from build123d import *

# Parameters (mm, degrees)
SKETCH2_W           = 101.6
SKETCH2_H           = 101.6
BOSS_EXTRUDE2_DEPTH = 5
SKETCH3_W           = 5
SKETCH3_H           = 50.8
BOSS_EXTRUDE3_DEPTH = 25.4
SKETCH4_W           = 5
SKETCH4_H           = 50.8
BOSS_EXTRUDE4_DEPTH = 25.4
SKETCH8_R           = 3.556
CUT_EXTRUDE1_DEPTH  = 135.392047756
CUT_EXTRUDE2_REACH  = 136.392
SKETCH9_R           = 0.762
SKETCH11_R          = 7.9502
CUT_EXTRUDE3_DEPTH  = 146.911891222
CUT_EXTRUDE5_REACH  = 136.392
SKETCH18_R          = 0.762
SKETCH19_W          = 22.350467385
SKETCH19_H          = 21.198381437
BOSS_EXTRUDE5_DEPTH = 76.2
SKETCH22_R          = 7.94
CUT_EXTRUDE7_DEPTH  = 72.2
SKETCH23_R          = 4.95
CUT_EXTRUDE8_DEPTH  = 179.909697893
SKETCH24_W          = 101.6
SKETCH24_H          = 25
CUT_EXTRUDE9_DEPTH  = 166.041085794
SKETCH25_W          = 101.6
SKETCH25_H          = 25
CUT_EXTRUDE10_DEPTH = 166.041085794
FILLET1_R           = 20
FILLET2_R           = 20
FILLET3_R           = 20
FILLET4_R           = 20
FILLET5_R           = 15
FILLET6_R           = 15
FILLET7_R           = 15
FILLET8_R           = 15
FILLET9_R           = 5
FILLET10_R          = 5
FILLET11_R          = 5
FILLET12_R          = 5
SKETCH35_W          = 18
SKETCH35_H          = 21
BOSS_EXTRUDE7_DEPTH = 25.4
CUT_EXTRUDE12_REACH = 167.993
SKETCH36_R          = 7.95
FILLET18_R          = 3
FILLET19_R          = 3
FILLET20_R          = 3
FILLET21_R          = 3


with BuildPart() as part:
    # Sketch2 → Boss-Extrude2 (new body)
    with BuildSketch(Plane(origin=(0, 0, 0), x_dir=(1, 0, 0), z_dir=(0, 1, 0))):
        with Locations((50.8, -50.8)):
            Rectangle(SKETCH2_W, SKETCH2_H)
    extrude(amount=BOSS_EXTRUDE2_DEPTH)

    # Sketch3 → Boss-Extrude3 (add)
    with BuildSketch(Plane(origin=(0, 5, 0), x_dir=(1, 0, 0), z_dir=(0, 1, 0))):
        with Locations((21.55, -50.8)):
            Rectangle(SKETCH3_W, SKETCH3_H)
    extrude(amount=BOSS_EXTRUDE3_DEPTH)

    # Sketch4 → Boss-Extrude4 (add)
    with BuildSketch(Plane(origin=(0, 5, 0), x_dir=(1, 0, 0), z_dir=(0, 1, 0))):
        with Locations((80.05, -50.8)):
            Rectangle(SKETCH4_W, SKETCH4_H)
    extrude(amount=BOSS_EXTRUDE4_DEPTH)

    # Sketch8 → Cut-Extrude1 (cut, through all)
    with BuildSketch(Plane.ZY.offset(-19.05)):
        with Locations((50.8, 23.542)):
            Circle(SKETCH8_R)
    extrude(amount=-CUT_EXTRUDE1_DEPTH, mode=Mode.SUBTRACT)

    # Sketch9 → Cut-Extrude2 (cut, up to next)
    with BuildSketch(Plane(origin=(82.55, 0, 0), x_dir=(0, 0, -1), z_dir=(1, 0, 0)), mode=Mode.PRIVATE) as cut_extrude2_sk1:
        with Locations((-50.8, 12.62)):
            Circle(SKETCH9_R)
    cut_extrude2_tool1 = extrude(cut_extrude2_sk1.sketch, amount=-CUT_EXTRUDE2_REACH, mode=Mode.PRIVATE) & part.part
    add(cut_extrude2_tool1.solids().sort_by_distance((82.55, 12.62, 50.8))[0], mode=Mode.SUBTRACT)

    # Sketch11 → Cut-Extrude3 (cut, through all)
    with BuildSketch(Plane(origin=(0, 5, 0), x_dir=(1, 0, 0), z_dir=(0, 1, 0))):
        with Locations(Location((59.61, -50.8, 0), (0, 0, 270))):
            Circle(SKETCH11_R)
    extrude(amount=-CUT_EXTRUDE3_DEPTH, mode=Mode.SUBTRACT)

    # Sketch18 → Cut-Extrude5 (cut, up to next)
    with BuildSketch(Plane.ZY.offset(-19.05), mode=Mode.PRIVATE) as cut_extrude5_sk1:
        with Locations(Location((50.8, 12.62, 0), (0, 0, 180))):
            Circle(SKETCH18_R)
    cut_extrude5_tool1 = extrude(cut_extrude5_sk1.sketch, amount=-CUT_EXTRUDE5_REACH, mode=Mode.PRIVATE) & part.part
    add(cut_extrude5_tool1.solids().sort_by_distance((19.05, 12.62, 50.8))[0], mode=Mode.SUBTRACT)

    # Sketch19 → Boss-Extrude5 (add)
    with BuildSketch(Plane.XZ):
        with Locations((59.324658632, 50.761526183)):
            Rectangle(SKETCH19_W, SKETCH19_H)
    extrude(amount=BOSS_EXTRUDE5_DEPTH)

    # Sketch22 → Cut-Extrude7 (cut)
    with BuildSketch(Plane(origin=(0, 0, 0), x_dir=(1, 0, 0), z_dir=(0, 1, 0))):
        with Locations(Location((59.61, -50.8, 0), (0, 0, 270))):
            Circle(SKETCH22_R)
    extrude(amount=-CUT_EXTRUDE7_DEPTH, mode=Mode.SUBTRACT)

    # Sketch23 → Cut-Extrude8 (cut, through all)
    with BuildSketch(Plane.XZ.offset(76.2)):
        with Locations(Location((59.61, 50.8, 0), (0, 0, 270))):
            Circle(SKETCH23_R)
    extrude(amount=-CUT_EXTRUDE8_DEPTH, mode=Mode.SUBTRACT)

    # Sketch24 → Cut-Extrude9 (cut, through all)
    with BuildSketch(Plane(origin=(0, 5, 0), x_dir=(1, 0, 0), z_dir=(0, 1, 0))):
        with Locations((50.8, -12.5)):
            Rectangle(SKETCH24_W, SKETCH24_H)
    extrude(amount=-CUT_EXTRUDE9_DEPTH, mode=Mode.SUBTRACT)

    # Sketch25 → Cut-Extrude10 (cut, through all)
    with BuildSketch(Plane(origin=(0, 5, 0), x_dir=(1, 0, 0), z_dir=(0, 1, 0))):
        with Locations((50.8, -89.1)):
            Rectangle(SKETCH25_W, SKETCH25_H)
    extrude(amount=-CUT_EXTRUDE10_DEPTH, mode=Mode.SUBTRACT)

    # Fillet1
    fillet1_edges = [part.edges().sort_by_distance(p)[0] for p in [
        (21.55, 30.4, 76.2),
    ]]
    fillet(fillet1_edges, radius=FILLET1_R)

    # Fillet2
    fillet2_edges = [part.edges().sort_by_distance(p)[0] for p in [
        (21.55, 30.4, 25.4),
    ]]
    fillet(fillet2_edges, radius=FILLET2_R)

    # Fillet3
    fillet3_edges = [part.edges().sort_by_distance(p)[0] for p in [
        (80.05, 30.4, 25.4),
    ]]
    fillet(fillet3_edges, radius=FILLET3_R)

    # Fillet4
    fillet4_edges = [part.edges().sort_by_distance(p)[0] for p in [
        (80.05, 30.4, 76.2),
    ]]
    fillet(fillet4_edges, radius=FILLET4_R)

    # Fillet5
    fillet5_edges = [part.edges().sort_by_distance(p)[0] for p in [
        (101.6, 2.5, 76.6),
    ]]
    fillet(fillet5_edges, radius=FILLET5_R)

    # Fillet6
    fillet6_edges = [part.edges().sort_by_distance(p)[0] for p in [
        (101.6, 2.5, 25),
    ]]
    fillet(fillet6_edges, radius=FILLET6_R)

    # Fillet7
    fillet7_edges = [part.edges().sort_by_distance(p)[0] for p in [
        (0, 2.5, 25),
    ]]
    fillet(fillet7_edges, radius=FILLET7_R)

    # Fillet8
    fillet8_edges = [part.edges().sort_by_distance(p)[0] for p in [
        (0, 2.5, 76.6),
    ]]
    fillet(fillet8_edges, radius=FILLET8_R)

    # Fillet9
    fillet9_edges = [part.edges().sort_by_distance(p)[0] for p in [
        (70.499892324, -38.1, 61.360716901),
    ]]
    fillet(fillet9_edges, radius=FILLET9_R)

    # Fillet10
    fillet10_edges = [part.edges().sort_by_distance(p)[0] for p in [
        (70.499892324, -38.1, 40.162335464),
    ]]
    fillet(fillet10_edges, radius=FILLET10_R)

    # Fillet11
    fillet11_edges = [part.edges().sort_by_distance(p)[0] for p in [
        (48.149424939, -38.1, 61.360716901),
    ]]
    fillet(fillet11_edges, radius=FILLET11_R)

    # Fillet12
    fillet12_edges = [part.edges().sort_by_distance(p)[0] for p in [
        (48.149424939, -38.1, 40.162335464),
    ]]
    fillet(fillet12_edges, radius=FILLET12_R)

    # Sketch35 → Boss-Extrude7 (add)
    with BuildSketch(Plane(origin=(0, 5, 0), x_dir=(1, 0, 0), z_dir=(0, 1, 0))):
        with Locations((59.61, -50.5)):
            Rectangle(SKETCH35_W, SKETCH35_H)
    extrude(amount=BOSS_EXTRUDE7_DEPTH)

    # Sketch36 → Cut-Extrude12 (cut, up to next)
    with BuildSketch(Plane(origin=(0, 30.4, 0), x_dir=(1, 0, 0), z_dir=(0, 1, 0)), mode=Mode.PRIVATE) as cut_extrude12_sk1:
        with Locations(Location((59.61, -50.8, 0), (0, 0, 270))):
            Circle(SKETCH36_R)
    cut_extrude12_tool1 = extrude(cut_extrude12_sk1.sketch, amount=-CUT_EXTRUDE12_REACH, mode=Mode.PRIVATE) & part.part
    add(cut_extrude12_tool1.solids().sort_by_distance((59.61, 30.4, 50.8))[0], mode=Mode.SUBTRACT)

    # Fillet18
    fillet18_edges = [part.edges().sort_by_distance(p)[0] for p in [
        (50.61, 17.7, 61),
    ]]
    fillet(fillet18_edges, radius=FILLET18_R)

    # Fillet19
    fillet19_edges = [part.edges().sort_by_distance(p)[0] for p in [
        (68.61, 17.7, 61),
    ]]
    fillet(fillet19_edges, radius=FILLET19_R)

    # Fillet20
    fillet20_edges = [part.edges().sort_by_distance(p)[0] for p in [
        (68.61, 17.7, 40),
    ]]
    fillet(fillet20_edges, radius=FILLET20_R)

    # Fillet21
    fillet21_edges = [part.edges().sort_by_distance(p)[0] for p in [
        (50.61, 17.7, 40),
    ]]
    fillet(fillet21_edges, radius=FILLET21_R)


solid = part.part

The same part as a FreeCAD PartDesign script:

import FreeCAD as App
import Part
import Sketcher
from FreeCAD import Vector
Q = App.Units.Quantity


def edges_at(feature, points):
    """Names of the edges that pass closest to the given points."""
    edges = feature.Shape.Edges
    near = lambda p: min(range(len(edges)), key=lambda i: edges[i].distToShape(Part.Vertex(*p))[0])
    return sorted({f"Edge{near(p) + 1}" for p in points})


def add_polygon(sketch, points):
    """Adds a closed chain of lines whose ends are joined by coincident constraints."""
    first, n = sketch.GeometryCount, len(points)
    for a, b in zip(points, points[1:] + points[:1]):
        sketch.addGeometry(Part.LineSegment(App.Vector(*a, 0), App.Vector(*b, 0)), False)
    for i in range(n):
        sketch.addConstraint(Sketcher.Constraint("Coincident", first + i, 2, first + (i + 1) % n, 1))

doc = App.newDocument("Part")
body = doc.addObject("PartDesign::Body", "Body")

sketch1 = doc.addObject("Sketcher::SketchObject", "Sketch")
body.addObject(sketch1)
sketch1.AttachmentSupport = (doc.XZ_Plane, [""])
sketch1.MapMode = "FlatFace"
add_polygon(sketch1, [(0, 0), (0, 102), (102, 102), (102, 0)])
sketch1.addConstraint(Sketcher.Constraint("Vertical", 0))
sketch1.addConstraint(Sketcher.Constraint("Horizontal", 1))
sketch1.addConstraint(Sketcher.Constraint("Vertical", 2))
sketch1.addConstraint(Sketcher.Constraint("Horizontal", 3))
sketch1.addConstraint(Sketcher.Constraint("Coincident", 3, 2, -1, 1))
sketch1.addConstraint(Sketcher.Constraint("Equal", 3, 0))
sketch1.addConstraint(Sketcher.Constraint("DistanceX", 1, 1, 1, 2, Q("101.6 mm")))
pad1 = doc.addObject("PartDesign::Pad", "Pad")
body.addObject(pad1)
pad1.Profile = sketch1
pad1.Length = 5
pad1.Reversed = True

sketch2 = doc.addObject("Sketcher::SketchObject", "Sketch001")
body.addObject(sketch2)
sketch2.AttachmentSupport = (doc.XZ_Plane, [""])
sketch2.MapMode = "FlatFace"
sketch2.AttachmentOffset = App.Placement(Vector(0, 0, -5), App.Rotation())
add_polygon(sketch2, [(19, 25), (19, 76), (24, 76), (24, 25)])
sketch2.addConstraint(Sketcher.Constraint("Vertical", 0))
sketch2.addConstraint(Sketcher.Constraint("Horizontal", 1))
sketch2.addConstraint(Sketcher.Constraint("Vertical", 2))
sketch2.addConstraint(Sketcher.Constraint("Horizontal", 3))
sketch2.addConstraint(Sketcher.Constraint("DistanceX", 1, 1, 1, 2, Q("5 mm")))
sketch2.addConstraint(Sketcher.Constraint("DistanceY", 0, 1, 0, 2, Q("50.8 mm")))
sketch2.addConstraint(Sketcher.Constraint("DistanceY", -1, 1, 0, 2, Q("76.2 mm")))
sketch2.addConstraint(Sketcher.Constraint("DistanceX", -1, 1, 0, 2, Q("19.05 mm")))
pad2 = doc.addObject("PartDesign::Pad", "Pad001")
body.addObject(pad2)
pad2.Profile = sketch2
pad2.Length = 25.4
pad2.Reversed = True

sketch3 = doc.addObject("Sketcher::SketchObject", "Sketch002")
body.addObject(sketch3)
sketch3.AttachmentSupport = (doc.XZ_Plane, [""])
sketch3.MapMode = "FlatFace"
sketch3.AttachmentOffset = App.Placement(Vector(0, 0, -5), App.Rotation())
add_polygon(sketch3, [(78, 25), (78, 76), (83, 76), (83, 25)])
sketch3.addConstraint(Sketcher.Constraint("Vertical", 0))
sketch3.addConstraint(Sketcher.Constraint("Horizontal", 1))
sketch3.addConstraint(Sketcher.Constraint("Vertical", 2))
sketch3.addConstraint(Sketcher.Constraint("Horizontal", 3))
sketch3.addConstraint(Sketcher.Constraint("DistanceX", 1, 1, 1, 2, Q("5 mm")))
sketch3.addConstraint(Sketcher.Constraint("DistanceY", 0, 1, 0, 2, Q("50.8 mm")))
sketch3.addConstraint(Sketcher.Constraint("DistanceY", -1, 1, 0, 2, Q("76.2 mm")))
sketch3.addConstraint(Sketcher.Constraint("DistanceX", -1, 1, 0, 2, Q("77.55 mm")))
pad3 = doc.addObject("PartDesign::Pad", "Pad002")
body.addObject(pad3)
pad3.Profile = sketch3
pad3.Length = 25.4
pad3.Reversed = True

sketch4 = doc.addObject("Sketcher::SketchObject", "Sketch003")
body.addObject(sketch4)
sketch4.AttachmentSupport = (doc.YZ_Plane, [""])
sketch4.MapMode = "FlatFace"
sketch4.AttachmentOffset = App.Placement(Vector(0, 0, 19.05), App.Rotation())
sketch4.addGeometry(Part.Circle(Vector(23.5, 50.8, 0), Vector(0, 0, 1), 3.6), False)
sketch4.addConstraint(Sketcher.Constraint("Diameter", 0, Q("7.112 mm")))
sketch4.addConstraint(Sketcher.Constraint("DistanceY", -1, 1, 0, 3, Q("50.8 mm")))
sketch4.addConstraint(Sketcher.Constraint("DistanceX", -1, 1, 0, 3, Q("23.542 mm")))
pocket1 = doc.addObject("PartDesign::Pocket", "Pocket")
body.addObject(pocket1)
pocket1.Profile = sketch4
pocket1.Type = "ThroughAll"
pocket1.Reversed = True

sketch5 = doc.addObject("Sketcher::SketchObject", "Sketch004")
body.addObject(sketch5)
sketch5.AttachmentSupport = (doc.YZ_Plane, [""])
sketch5.MapMode = "FlatFace"
sketch5.AttachmentOffset = App.Placement(Vector(0, 0, 82.55), App.Rotation())
sketch5.addGeometry(Part.Circle(Vector(12.6, 50.8, 0), Vector(0, 0, 1), 0.8), False)
sketch5.addConstraint(Sketcher.Constraint("Diameter", 0, Q("1.524 mm")))
sketch5.addConstraint(Sketcher.Constraint("DistanceY", -1, 1, 0, 3, Q("50.8 mm")))
sketch5.addConstraint(Sketcher.Constraint("DistanceX", -1, 1, 0, 3, Q("12.62 mm")))
pocket2 = doc.addObject("PartDesign::Pocket", "Pocket001")
body.addObject(pocket2)
pocket2.Profile = sketch5
pocket2.Type = "UpToFirst"

sketch6 = doc.addObject("Sketcher::SketchObject", "Sketch005")
body.addObject(sketch6)
sketch6.AttachmentSupport = (doc.XZ_Plane, [""])
sketch6.MapMode = "FlatFace"
sketch6.AttachmentOffset = App.Placement(Vector(0, 0, -5), App.Rotation())
sketch6.addGeometry(Part.Circle(Vector(60, 51, 0), Vector(0, 0, 1), 8), False)
sketch6.addConstraint(Sketcher.Constraint("Diameter", 0, Q("15.9004 mm")))
sketch6.addConstraint(Sketcher.Constraint("DistanceY", -1, 1, 0, 3, Q("50.8 mm")))
sketch6.addConstraint(Sketcher.Constraint("DistanceX", -1, 1, 0, 3, Q("59.61 mm")))
pocket3 = doc.addObject("PartDesign::Pocket", "Pocket002")
body.addObject(pocket3)
pocket3.Profile = sketch6
pocket3.Type = "ThroughAll"
pocket3.Reversed = True

sketch7 = doc.addObject("Sketcher::SketchObject", "Sketch006")
body.addObject(sketch7)
sketch7.AttachmentSupport = (doc.YZ_Plane, [""])
sketch7.MapMode = "FlatFace"
sketch7.AttachmentOffset = App.Placement(Vector(0, 0, 19.05), App.Rotation())
sketch7.addGeometry(Part.Circle(Vector(12.6, 50.8, 0), Vector(0, 0, 1), 0.8), False)
sketch7.addConstraint(Sketcher.Constraint("Diameter", 0, Q("1.524 mm")))
sketch7.addConstraint(Sketcher.Constraint("DistanceY", -1, 1, 0, 3, Q("50.8 mm")))
sketch7.addConstraint(Sketcher.Constraint("DistanceX", -1, 1, 0, 3, Q("12.62 mm")))
pocket4 = doc.addObject("PartDesign::Pocket", "Pocket003")
body.addObject(pocket4)
pocket4.Profile = sketch7
pocket4.Type = "UpToFirst"
pocket4.Reversed = True

sketch8 = doc.addObject("Sketcher::SketchObject", "Sketch007")
body.addObject(sketch8)
sketch8.AttachmentSupport = (doc.XZ_Plane, [""])
sketch8.MapMode = "FlatFace"
add_polygon(sketch8, [(48, 61), (48, 40), (70, 40), (70, 61)])
sketch8.addConstraint(Sketcher.Constraint("Vertical", 0))
sketch8.addConstraint(Sketcher.Constraint("Horizontal", 1))
sketch8.addConstraint(Sketcher.Constraint("Vertical", 2))
sketch8.addConstraint(Sketcher.Constraint("Horizontal", 3))
sketch8.addConstraint(Sketcher.Constraint("DistanceY", 0, 2, 0, 1, Q("21.198381 mm")))
sketch8.addConstraint(Sketcher.Constraint("DistanceX", 1, 1, 1, 2, Q("22.350467 mm")))
sketch8.addConstraint(Sketcher.Constraint("DistanceX", -1, 1, 0, 2, Q("48.149425 mm")))
sketch8.addConstraint(Sketcher.Constraint("DistanceY", -1, 1, 0, 2, Q("40.162335 mm")))
pad4 = doc.addObject("PartDesign::Pad", "Pad003")
body.addObject(pad4)
pad4.Profile = sketch8
pad4.Length = 76.2

sketch9 = doc.addObject("Sketcher::SketchObject", "Sketch008")
body.addObject(sketch9)
sketch9.AttachmentSupport = (doc.XZ_Plane, [""])
sketch9.MapMode = "FlatFace"
sketch9.addGeometry(Part.Circle(Vector(60, 51, 0), Vector(0, 0, 1), 8), False)
sketch9.addConstraint(Sketcher.Constraint("Diameter", 0, Q("15.88 mm")))
sketch9.addConstraint(Sketcher.Constraint("DistanceY", -1, 1, 0, 3, Q("50.8 mm")))
sketch9.addConstraint(Sketcher.Constraint("DistanceX", -1, 1, 0, 3, Q("59.61 mm")))
pocket5 = doc.addObject("PartDesign::Pocket", "Pocket004")
body.addObject(pocket5)
pocket5.Profile = sketch9
pocket5.Length = 72.2
pocket5.Reversed = True

sketch10 = doc.addObject("Sketcher::SketchObject", "Sketch009")
body.addObject(sketch10)
sketch10.AttachmentSupport = (doc.XZ_Plane, [""])
sketch10.MapMode = "FlatFace"
sketch10.AttachmentOffset = App.Placement(Vector(0, 0, 76.2), App.Rotation())
sketch10.addGeometry(Part.Circle(Vector(59.6, 50.8, 0), Vector(0, 0, 1), 5), False)
sketch10.addConstraint(Sketcher.Constraint("Diameter", 0, Q("9.9 mm")))
sketch10.addConstraint(Sketcher.Constraint("DistanceY", -1, 1, 0, 3, Q("50.8 mm")))
sketch10.addConstraint(Sketcher.Constraint("DistanceX", -1, 1, 0, 3, Q("59.61 mm")))
pocket6 = doc.addObject("PartDesign::Pocket", "Pocket005")
body.addObject(pocket6)
pocket6.Profile = sketch10
pocket6.Type = "ThroughAll"

sketch11 = doc.addObject("Sketcher::SketchObject", "Sketch010")
body.addObject(sketch11)
sketch11.AttachmentSupport = (doc.XZ_Plane, [""])
sketch11.MapMode = "FlatFace"
sketch11.AttachmentOffset = App.Placement(Vector(0, 0, -5), App.Rotation())
add_polygon(sketch11, [(0, 0), (0, 25), (102, 25), (102, 0)])
sketch11.addConstraint(Sketcher.Constraint("Vertical", 0))
sketch11.addConstraint(Sketcher.Constraint("Horizontal", 1))
sketch11.addConstraint(Sketcher.Constraint("Vertical", 2))
sketch11.addConstraint(Sketcher.Constraint("Horizontal", 3))
sketch11.addConstraint(Sketcher.Constraint("Coincident", 3, 2, -1, 1))
sketch11.addConstraint(Sketcher.Constraint("DistanceY", 0, 1, 0, 2, Q("25 mm")))
sketch11.addConstraint(Sketcher.Constraint("DistanceX", 1, 1, 1, 2, Q("101.6 mm")))
pocket7 = doc.addObject("PartDesign::Pocket", "Pocket006")
body.addObject(pocket7)
pocket7.Profile = sketch11
pocket7.Type = "ThroughAll"
pocket7.Reversed = True

sketch12 = doc.addObject("Sketcher::SketchObject", "Sketch011")
body.addObject(sketch12)
sketch12.AttachmentSupport = (doc.XZ_Plane, [""])
sketch12.MapMode = "FlatFace"
sketch12.AttachmentOffset = App.Placement(Vector(0, 0, -5), App.Rotation())
add_polygon(sketch12, [(0, 77), (0, 102), (102, 102), (102, 77)])
sketch12.addConstraint(Sketcher.Constraint("Vertical", 0))
sketch12.addConstraint(Sketcher.Constraint("Horizontal", 1))
sketch12.addConstraint(Sketcher.Constraint("Vertical", 2))
sketch12.addConstraint(Sketcher.Constraint("Horizontal", 3))
sketch12.addConstraint(Sketcher.Constraint("PointOnObject", 0, 2, -2))
sketch12.addConstraint(Sketcher.Constraint("DistanceY", 0, 1, 0, 2, Q("25 mm")))
sketch12.addConstraint(Sketcher.Constraint("DistanceX", 1, 1, 1, 2, Q("101.6 mm")))
sketch12.addConstraint(Sketcher.Constraint("DistanceY", -1, 1, 0, 2, Q("101.6 mm")))
pocket8 = doc.addObject("PartDesign::Pocket", "Pocket007")
body.addObject(pocket8)
pocket8.Profile = sketch12
pocket8.Type = "ThroughAll"
pocket8.Reversed = True
doc.recompute()

fillet = doc.addObject("PartDesign::Fillet", "Fillet")
body.addObject(fillet)
fillet.Base = (pocket8, edges_at(pocket8, [(21.55, 30.4, 76.2)]))
fillet.Radius = 20
doc.recompute()

fillet2 = doc.addObject("PartDesign::Fillet", "Fillet001")
body.addObject(fillet2)
fillet2.Base = (fillet, edges_at(fillet, [(21.55, 30.4, 25.4)]))
fillet2.Radius = 20
doc.recompute()

fillet3 = doc.addObject("PartDesign::Fillet", "Fillet002")
body.addObject(fillet3)
fillet3.Base = (fillet2, edges_at(fillet2, [(80.05, 30.4, 25.4)]))
fillet3.Radius = 20
doc.recompute()

fillet4 = doc.addObject("PartDesign::Fillet", "Fillet003")
body.addObject(fillet4)
fillet4.Base = (fillet3, edges_at(fillet3, [(80.05, 30.4, 76.2)]))
fillet4.Radius = 20
doc.recompute()

fillet5 = doc.addObject("PartDesign::Fillet", "Fillet004")
body.addObject(fillet5)
fillet5.Base = (fillet4, edges_at(fillet4, [(101.6, 2.5, 76.6)]))
fillet5.Radius = 15
doc.recompute()

fillet6 = doc.addObject("PartDesign::Fillet", "Fillet005")
body.addObject(fillet6)
fillet6.Base = (fillet5, edges_at(fillet5, [(101.6, 2.5, 25)]))
fillet6.Radius = 15
doc.recompute()

fillet7 = doc.addObject("PartDesign::Fillet", "Fillet006")
body.addObject(fillet7)
fillet7.Base = (fillet6, edges_at(fillet6, [(0, 2.5, 25)]))
fillet7.Radius = 15
doc.recompute()

fillet8 = doc.addObject("PartDesign::Fillet", "Fillet007")
body.addObject(fillet8)
fillet8.Base = (fillet7, edges_at(fillet7, [(0, 2.5, 76.6)]))
fillet8.Radius = 15
doc.recompute()

fillet9 = doc.addObject("PartDesign::Fillet", "Fillet008")
body.addObject(fillet9)
fillet9.Base = (fillet8, edges_at(fillet8, [(70.5, -38.1, 61.361)]))
fillet9.Radius = 5
doc.recompute()

fillet10 = doc.addObject("PartDesign::Fillet", "Fillet009")
body.addObject(fillet10)
fillet10.Base = (fillet9, edges_at(fillet9, [(70.5, -38.1, 40.162)]))
fillet10.Radius = 5
doc.recompute()

fillet11 = doc.addObject("PartDesign::Fillet", "Fillet010")
body.addObject(fillet11)
fillet11.Base = (fillet10, edges_at(fillet10, [(48.149, -38.1, 61.361)]))
fillet11.Radius = 5
doc.recompute()

fillet12 = doc.addObject("PartDesign::Fillet", "Fillet011")
body.addObject(fillet12)
fillet12.Base = (fillet11, edges_at(fillet11, [(48.149, -38.1, 40.162)]))
fillet12.Radius = 5

sketch13 = doc.addObject("Sketcher::SketchObject", "Sketch012")
body.addObject(sketch13)
sketch13.AttachmentSupport = (doc.XZ_Plane, [""])
sketch13.MapMode = "FlatFace"
sketch13.AttachmentOffset = App.Placement(Vector(0, 0, -5), App.Rotation())
add_polygon(sketch13, [(51, 40), (51, 61), (69, 61), (69, 40)])
sketch13.addConstraint(Sketcher.Constraint("Vertical", 0))
sketch13.addConstraint(Sketcher.Constraint("Horizontal", 1))
sketch13.addConstraint(Sketcher.Constraint("Vertical", 2))
sketch13.addConstraint(Sketcher.Constraint("Horizontal", 3))
sketch13.addConstraint(Sketcher.Constraint("DistanceX", 1, 1, 1, 2, Q("18 mm")))
sketch13.addConstraint(Sketcher.Constraint("DistanceY", 0, 1, 0, 2, Q("21 mm")))
sketch13.addConstraint(Sketcher.Constraint("DistanceY", -1, 1, 0, 2, Q("61 mm")))
sketch13.addConstraint(Sketcher.Constraint("DistanceX", -1, 1, 0, 2, Q("50.61 mm")))
pad5 = doc.addObject("PartDesign::Pad", "Pad004")
body.addObject(pad5)
pad5.Profile = sketch13
pad5.Length = 25.4
pad5.Reversed = True

sketch14 = doc.addObject("Sketcher::SketchObject", "Sketch013")
body.addObject(sketch14)
sketch14.AttachmentSupport = (doc.XZ_Plane, [""])
sketch14.MapMode = "FlatFace"
sketch14.AttachmentOffset = App.Placement(Vector(0, 0, -30.4), App.Rotation())
sketch14.addGeometry(Part.Circle(Vector(60, 51, 0), Vector(0, 0, 1), 8), False)
sketch14.addConstraint(Sketcher.Constraint("Diameter", 0, Q("15.9 mm")))
sketch14.addConstraint(Sketcher.Constraint("DistanceY", -1, 1, 0, 3, Q("50.8 mm")))
sketch14.addConstraint(Sketcher.Constraint("DistanceX", -1, 1, 0, 3, Q("59.61 mm")))
pocket9 = doc.addObject("PartDesign::Pocket", "Pocket008")
body.addObject(pocket9)
pocket9.Profile = sketch14
pocket9.Type = "UpToFirst"
pocket9.Reversed = True
doc.recompute()

fillet13 = doc.addObject("PartDesign::Fillet", "Fillet012")
body.addObject(fillet13)
fillet13.Base = (pocket9, edges_at(pocket9, [(50.61, 17.7, 61)]))
fillet13.Radius = 3
doc.recompute()

fillet14 = doc.addObject("PartDesign::Fillet", "Fillet013")
body.addObject(fillet14)
fillet14.Base = (fillet13, edges_at(fillet13, [(68.61, 17.7, 61)]))
fillet14.Radius = 3
doc.recompute()

fillet15 = doc.addObject("PartDesign::Fillet", "Fillet014")
body.addObject(fillet15)
fillet15.Base = (fillet14, edges_at(fillet14, [(68.61, 17.7, 40)]))
fillet15.Radius = 3
doc.recompute()

fillet16 = doc.addObject("PartDesign::Fillet", "Fillet015")
body.addObject(fillet16)
fillet16.Base = (fillet15, edges_at(fillet15, [(50.61, 17.7, 40)]))
fillet16.Radius = 3

doc.recompute()
